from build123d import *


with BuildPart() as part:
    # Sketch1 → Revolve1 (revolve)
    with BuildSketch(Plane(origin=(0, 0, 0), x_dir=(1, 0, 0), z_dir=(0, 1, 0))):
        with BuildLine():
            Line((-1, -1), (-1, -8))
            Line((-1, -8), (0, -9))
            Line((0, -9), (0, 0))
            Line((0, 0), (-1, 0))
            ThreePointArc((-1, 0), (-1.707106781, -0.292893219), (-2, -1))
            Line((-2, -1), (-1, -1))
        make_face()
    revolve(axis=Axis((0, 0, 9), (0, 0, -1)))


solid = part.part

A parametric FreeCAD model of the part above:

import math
import FreeCAD as App
import Part
import Sketcher

V = App.Vector
Q = App.Units.Quantity

doc = App.newDocument("Part")
body = doc.addObject("PartDesign::Body", "Body")

# Sketch on XZ plane
sketch1 = doc.addObject("Sketcher::SketchObject", "Sketch")
body.addObject(sketch1)
sketch1.AttachmentSupport = (doc.XZ_Plane, [""])
sketch1.MapMode = "FlatFace"
sketch1.addGeometry(Part.LineSegment(V(-1, 1, 0), V(-1, 8, 0)), False)
sketch1.addGeometry(Part.LineSegment(V(-1, 8, 0), V(0, 9, 0)), False)
sketch1.addGeometry(Part.LineSegment(V(0, 9, 0), V(0, 0, 0)), False)
sketch1.addGeometry(Part.LineSegment(V(0, 0, 0), V(-1, 0, 0)), False)
sketch1.addGeometry(Part.ArcOfCircle(Part.Circle(V(-1, 1, 0), V(0, 0, 1), 1), math.radians(-180), math.radians(-90)), False)
sketch1.addGeometry(Part.LineSegment(V(-2, 1, 0), V(-1, 1, 0)), False)
sketch1.addConstraint(Sketcher.Constraint("Coincident", 0, 2, 1, 1))
sketch1.addConstraint(Sketcher.Constraint("Coincident", 1, 2, 2, 1))
sketch1.addConstraint(Sketcher.Constraint("Coincident", 2, 2, 3, 1))
sketch1.addConstraint(Sketcher.Constraint("Tangent", 3, 2, 4, 2))
sketch1.addConstraint(Sketcher.Constraint("Coincident", 4, 1, 5, 1))
sketch1.addConstraint(Sketcher.Constraint("Coincident", 5, 2, 0, 1))
sketch1.addConstraint(Sketcher.Constraint("Vertical", 0))
sketch1.addConstraint(Sketcher.Constraint("Vertical", 2))
sketch1.addConstraint(Sketcher.Constraint("Horizontal", 3))
sketch1.addConstraint(Sketcher.Constraint("Horizontal", 5))
sketch1.addConstraint(Sketcher.Constraint("Coincident", 2, 2, -1, 1))
sketch1.addConstraint(Sketcher.Constraint("Coincident", 5, 2, 4, 3))
sketch1.addConstraint(Sketcher.Constraint("Equal", 3, 5))
sketch1.addConstraint(Sketcher.Constraint("Radius", 4, Q("1 mm")))
sketch1.addConstraint(Sketcher.Constraint("DistanceY", 0, 1, 0, 2, Q("7 mm")))
sketch1.addConstraint(Sketcher.Constraint("DistanceY", 2, 2, 2, 1, Q("9 mm")))
revolution = doc.addObject("PartDesign::Revolution", "Revolution")
body.addObject(revolution)
revolution.Profile = sketch1
revolution.ReferenceAxis = (sketch1, ["V_Axis"])
revolution.Angle = 360

doc.recompute()
